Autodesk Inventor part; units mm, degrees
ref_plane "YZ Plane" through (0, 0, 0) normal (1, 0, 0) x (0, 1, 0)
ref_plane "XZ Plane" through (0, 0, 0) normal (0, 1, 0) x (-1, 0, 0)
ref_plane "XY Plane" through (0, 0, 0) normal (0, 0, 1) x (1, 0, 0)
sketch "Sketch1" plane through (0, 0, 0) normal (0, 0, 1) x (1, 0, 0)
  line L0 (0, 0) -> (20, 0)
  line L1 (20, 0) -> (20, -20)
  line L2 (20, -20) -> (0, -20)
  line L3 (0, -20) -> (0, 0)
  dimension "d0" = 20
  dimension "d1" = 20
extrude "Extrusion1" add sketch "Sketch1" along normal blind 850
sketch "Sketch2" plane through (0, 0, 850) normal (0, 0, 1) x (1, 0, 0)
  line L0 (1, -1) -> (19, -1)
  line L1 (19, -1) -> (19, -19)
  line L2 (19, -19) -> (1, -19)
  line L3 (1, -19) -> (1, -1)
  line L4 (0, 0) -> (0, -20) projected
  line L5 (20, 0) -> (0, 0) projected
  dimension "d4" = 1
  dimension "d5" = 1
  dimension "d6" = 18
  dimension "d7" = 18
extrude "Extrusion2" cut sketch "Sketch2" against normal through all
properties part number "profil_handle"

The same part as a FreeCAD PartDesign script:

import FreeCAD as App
import Part
import Sketcher
from FreeCAD import Vector
Q = App.Units.Quantity


def add_polygon(sketch, points):
    """Adds a closed chain of lines whose ends are joined by coincident constraints."""
    first, n = sketch.GeometryCount, len(points)
    for a, b in zip(points, points[1:] + points[:1]):
        sketch.addGeometry(Part.LineSegment(App.Vector(*a, 0), App.Vector(*b, 0)), False)
    for i in range(n):
        sketch.addConstraint(Sketcher.Constraint("Coincident", first + i, 2, first + (i + 1) % n, 1))

doc = App.newDocument("Part")
params = doc.addObject("Spreadsheet::Sheet", "Params")
for row, (alias, value) in enumerate([
    ("sketch1_width", "20 mm"),
    ("pad1_length", "850 mm"),
    ("sketch2_width", "18 mm"),
], start=1):
    params.set(f"A{row}", alias)
    params.set(f"B{row}", "=" + value)
    params.setAlias(f"B{row}", alias)

body = doc.addObject("PartDesign::Body", "Body")

# Sketch on XY plane
sketch1 = doc.addObject("Sketcher::SketchObject", "Sketch")
body.addObject(sketch1)
sketch1.AttachmentSupport = (doc.XY_Plane, [""])
sketch1.MapMode = "FlatFace"
add_polygon(sketch1, [(20, 0), (0, 0), (0, -20), (20, -20)])  # lines 0-3
sketch1.addConstraint([
    Sketcher.Constraint("Horizontal", 0),
    Sketcher.Constraint("Vertical", 1),
    Sketcher.Constraint("Horizontal", 2),
    Sketcher.Constraint("Vertical", 3),
    Sketcher.Constraint("Coincident", 0, 2, -1, 1),
    Sketcher.Constraint("Equal", 2, 1),
    Sketcher.Constraint("DistanceX", 0, 2, 0, 1, Q("20 mm")),
])
sketch1.setExpression("Constraints[10]", "Params.sketch1_width")
pad1 = doc.addObject("PartDesign::Pad", "Pad")
body.addObject(pad1)
pad1.Profile = sketch1
pad1.setExpression("Length", "Params.pad1_length")

# Sketch on XY plane
sketch2 = doc.addObject("Sketcher::SketchObject", "Sketch001")
body.addObject(sketch2)
sketch2.AttachmentSupport = (doc.XY_Plane, [""])
sketch2.MapMode = "FlatFace"
sketch2.AttachmentOffset = App.Placement(Vector(0, 0, 850), App.Rotation())
add_polygon(sketch2, [(19, -1), (1, -1), (1, -19), (19, -19)])  # lines 0-3
sketch2.addConstraint([
    Sketcher.Constraint("Horizontal", 0),
    Sketcher.Constraint("Vertical", 1),
    Sketcher.Constraint("Horizontal", 2),
    Sketcher.Constraint("Vertical", 3),
    Sketcher.Constraint("Equal", 2, 1),
    Sketcher.Constraint("DistanceX", 0, 2, 0, 1, Q("18 mm")),
    Sketcher.Constraint("DistanceX", -1, 1, 0, 2, Q("1 mm")),
    Sketcher.Constraint("DistanceY", 0, 2, -1, 1, Q("1 mm")),
])
sketch2.setExpression("Constraints[9]", "Params.sketch2_width")
pocket1 = doc.addObject("PartDesign::Pocket", "Pocket")
body.addObject(pocket1)
pocket1.Profile = sketch2
pocket1.Type = "ThroughAll"

doc.recompute()
